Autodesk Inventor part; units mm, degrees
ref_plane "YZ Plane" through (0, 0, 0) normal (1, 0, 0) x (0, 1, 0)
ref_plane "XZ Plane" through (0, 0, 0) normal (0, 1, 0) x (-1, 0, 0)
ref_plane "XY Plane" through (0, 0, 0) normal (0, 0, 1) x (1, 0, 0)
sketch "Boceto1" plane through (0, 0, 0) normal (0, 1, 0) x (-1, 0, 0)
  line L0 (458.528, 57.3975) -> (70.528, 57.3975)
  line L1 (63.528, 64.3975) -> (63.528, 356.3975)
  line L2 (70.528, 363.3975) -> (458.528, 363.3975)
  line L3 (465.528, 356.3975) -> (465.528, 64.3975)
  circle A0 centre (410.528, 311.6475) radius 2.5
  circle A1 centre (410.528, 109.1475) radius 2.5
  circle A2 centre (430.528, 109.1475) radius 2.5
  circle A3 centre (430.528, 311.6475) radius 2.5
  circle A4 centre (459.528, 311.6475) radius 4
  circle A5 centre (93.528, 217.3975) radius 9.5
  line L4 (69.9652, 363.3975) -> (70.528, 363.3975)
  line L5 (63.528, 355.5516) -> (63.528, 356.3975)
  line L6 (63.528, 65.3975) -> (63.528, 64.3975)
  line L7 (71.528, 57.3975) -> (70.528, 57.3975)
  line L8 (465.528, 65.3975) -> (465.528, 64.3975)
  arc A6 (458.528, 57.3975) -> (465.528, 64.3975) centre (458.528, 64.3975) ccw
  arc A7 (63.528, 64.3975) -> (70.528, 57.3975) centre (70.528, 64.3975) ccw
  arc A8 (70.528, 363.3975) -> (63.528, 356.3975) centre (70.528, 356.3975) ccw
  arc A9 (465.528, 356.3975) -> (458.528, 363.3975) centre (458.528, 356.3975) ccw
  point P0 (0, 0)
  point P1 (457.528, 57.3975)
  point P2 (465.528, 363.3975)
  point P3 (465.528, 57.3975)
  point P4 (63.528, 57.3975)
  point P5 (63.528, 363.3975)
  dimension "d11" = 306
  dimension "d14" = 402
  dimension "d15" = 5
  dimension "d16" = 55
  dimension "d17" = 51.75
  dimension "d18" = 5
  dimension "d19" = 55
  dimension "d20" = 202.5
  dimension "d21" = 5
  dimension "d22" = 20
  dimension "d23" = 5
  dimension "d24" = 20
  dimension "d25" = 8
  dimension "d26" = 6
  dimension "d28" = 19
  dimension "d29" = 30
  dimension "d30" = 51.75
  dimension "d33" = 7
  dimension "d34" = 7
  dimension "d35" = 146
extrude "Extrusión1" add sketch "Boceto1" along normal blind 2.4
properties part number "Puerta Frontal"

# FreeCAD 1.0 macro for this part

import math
import FreeCAD as App
import Part
import Sketcher
from FreeCAD import Vector
Q = App.Units.Quantity

doc = App.newDocument("Part")
body = doc.addObject("PartDesign::Body", "Body")

sketch1 = body.newObject("Sketcher::SketchObject", "Sketch")
sketch1.AttachmentSupport = (doc.getObject("XZ_Plane"), [""])
sketch1.MapMode = "FlatFace"
sketch1.addGeometry([
    Part.LineSegment(Vector(-70.5, 57.4, 0), Vector(-458.5, 57.4, 0)),
    Part.ArcOfCircle(Part.Circle(Vector(-458.5, 64.4, 0), Vector(0, 0, 1), 7), math.radians(180), math.radians(270)),
    Part.LineSegment(Vector(-465.5, 64.4, 0), Vector(-465.5, 356.4, 0)),
    Part.ArcOfCircle(Part.Circle(Vector(-458.5, 356.4, 0), Vector(0, 0, 1), 7), math.radians(90), math.radians(180)),
    Part.LineSegment(Vector(-458.5, 363.4, 0), Vector(-70.5, 363.4, 0)),
    Part.ArcOfCircle(Part.Circle(Vector(-70.5, 356.4, 0), Vector(0, 0, 1), 7), math.radians(0), math.radians(90)),
    Part.LineSegment(Vector(-63.5, 356.4, 0), Vector(-63.5, 64.4, 0)),
    Part.ArcOfCircle(Part.Circle(Vector(-70.5, 64.4, 0), Vector(0, 0, 1), 7), math.radians(-90), math.radians(0)),
    Part.Circle(Vector(-410.5, 109.1, 0), Vector(0, 0, 1), 2.5),
    Part.Circle(Vector(-430.5, 109.1, 0), Vector(0, 0, 1), 2.5),
    Part.Circle(Vector(-93.5, 217.4, 0), Vector(0, 0, 1), 9.5),
    Part.Circle(Vector(-410.5, 311.6, 0), Vector(0, 0, 1), 2.5),
    Part.Circle(Vector(-430.5, 311.6, 0), Vector(0, 0, 1), 2.5),
    Part.Circle(Vector(-459.5, 311.6, 0), Vector(0, 0, 1), 4),
], False)
sketch1.addConstraint([
    Sketcher.Constraint("Tangent", 0, 2, 1, 2),
    Sketcher.Constraint("Tangent", 1, 1, 2, 1),
    Sketcher.Constraint("Tangent", 2, 2, 3, 2),
    Sketcher.Constraint("Tangent", 3, 1, 4, 1),
    Sketcher.Constraint("Tangent", 4, 2, 5, 2),
    Sketcher.Constraint("Tangent", 5, 1, 6, 1),
    Sketcher.Constraint("Tangent", 6, 2, 7, 2),
    Sketcher.Constraint("Tangent", 7, 1, 0, 1),
    Sketcher.Constraint("Horizontal", 0),
    Sketcher.Constraint("Vertical", 2),
    Sketcher.Constraint("Horizontal", 4),
    Sketcher.Constraint("Vertical", 6),
    Sketcher.Constraint("Equal", 1, 3),
    Sketcher.Constraint("Equal", 3, 5),
    Sketcher.Constraint("Equal", 5, 7),
    Sketcher.Constraint("Equal", 8, 9),
    Sketcher.Constraint("Equal", 9, 11),
    Sketcher.Constraint("Equal", 11, 12),
    Sketcher.Constraint("Horizontal", 8, 3, 9, 3),
    Sketcher.Constraint("Horizontal", 11, 3, 12, 3),
    Sketcher.Constraint("Horizontal", 12, 3, 13, 3),
    Sketcher.Constraint("Vertical", 8, 3, 11, 3),
    Sketcher.Constraint("Vertical", 9, 3, 12, 3),
    Sketcher.Constraint("Diameter", 8, Q("5 mm")),
    Sketcher.Constraint("Diameter", 10, Q("19 mm")),
    Sketcher.Constraint("Diameter", 13, Q("8 mm")),
    Sketcher.Constraint("Radius", 1, Q("7 mm")),
    Sketcher.Constraint("DistanceX", 9, 3, 8, 3, Q("20 mm")),
    Sketcher.Constraint("DistanceX", 1, 1, 8, 3, Q("55 mm")),
    Sketcher.Constraint("DistanceX", 1, 1, 13, 3, Q("6 mm")),
    Sketcher.Constraint("DistanceY", 10, 3, 4, 2, Q("146 mm")),
    Sketcher.Constraint("DistanceX", 10, 3, 5, 1, Q("30 mm")),
    Sketcher.Constraint("DistanceY", 8, 3, 11, 3, Q("202.5 mm")),
    Sketcher.Constraint("DistanceX", 0, 2, 0, 1, Q("388 mm")),
    Sketcher.Constraint("DistanceY", 2, 1, 2, 2, Q("292 mm")),
    Sketcher.Constraint("DistanceY", 0, 2, 9, 3, Q("51.75 mm")),
    Sketcher.Constraint("DistanceX", 1, 3, -1, 1, Q("458.528 mm")),
    Sketcher.Constraint("DistanceY", -1, 1, 1, 3, Q("64.3975 mm")),
])
pad1 = body.newObject("PartDesign::Pad", "Pad")
pad1.Profile = sketch1
pad1.Length = 2.4
pad1.Reversed = True

doc.recompute()
